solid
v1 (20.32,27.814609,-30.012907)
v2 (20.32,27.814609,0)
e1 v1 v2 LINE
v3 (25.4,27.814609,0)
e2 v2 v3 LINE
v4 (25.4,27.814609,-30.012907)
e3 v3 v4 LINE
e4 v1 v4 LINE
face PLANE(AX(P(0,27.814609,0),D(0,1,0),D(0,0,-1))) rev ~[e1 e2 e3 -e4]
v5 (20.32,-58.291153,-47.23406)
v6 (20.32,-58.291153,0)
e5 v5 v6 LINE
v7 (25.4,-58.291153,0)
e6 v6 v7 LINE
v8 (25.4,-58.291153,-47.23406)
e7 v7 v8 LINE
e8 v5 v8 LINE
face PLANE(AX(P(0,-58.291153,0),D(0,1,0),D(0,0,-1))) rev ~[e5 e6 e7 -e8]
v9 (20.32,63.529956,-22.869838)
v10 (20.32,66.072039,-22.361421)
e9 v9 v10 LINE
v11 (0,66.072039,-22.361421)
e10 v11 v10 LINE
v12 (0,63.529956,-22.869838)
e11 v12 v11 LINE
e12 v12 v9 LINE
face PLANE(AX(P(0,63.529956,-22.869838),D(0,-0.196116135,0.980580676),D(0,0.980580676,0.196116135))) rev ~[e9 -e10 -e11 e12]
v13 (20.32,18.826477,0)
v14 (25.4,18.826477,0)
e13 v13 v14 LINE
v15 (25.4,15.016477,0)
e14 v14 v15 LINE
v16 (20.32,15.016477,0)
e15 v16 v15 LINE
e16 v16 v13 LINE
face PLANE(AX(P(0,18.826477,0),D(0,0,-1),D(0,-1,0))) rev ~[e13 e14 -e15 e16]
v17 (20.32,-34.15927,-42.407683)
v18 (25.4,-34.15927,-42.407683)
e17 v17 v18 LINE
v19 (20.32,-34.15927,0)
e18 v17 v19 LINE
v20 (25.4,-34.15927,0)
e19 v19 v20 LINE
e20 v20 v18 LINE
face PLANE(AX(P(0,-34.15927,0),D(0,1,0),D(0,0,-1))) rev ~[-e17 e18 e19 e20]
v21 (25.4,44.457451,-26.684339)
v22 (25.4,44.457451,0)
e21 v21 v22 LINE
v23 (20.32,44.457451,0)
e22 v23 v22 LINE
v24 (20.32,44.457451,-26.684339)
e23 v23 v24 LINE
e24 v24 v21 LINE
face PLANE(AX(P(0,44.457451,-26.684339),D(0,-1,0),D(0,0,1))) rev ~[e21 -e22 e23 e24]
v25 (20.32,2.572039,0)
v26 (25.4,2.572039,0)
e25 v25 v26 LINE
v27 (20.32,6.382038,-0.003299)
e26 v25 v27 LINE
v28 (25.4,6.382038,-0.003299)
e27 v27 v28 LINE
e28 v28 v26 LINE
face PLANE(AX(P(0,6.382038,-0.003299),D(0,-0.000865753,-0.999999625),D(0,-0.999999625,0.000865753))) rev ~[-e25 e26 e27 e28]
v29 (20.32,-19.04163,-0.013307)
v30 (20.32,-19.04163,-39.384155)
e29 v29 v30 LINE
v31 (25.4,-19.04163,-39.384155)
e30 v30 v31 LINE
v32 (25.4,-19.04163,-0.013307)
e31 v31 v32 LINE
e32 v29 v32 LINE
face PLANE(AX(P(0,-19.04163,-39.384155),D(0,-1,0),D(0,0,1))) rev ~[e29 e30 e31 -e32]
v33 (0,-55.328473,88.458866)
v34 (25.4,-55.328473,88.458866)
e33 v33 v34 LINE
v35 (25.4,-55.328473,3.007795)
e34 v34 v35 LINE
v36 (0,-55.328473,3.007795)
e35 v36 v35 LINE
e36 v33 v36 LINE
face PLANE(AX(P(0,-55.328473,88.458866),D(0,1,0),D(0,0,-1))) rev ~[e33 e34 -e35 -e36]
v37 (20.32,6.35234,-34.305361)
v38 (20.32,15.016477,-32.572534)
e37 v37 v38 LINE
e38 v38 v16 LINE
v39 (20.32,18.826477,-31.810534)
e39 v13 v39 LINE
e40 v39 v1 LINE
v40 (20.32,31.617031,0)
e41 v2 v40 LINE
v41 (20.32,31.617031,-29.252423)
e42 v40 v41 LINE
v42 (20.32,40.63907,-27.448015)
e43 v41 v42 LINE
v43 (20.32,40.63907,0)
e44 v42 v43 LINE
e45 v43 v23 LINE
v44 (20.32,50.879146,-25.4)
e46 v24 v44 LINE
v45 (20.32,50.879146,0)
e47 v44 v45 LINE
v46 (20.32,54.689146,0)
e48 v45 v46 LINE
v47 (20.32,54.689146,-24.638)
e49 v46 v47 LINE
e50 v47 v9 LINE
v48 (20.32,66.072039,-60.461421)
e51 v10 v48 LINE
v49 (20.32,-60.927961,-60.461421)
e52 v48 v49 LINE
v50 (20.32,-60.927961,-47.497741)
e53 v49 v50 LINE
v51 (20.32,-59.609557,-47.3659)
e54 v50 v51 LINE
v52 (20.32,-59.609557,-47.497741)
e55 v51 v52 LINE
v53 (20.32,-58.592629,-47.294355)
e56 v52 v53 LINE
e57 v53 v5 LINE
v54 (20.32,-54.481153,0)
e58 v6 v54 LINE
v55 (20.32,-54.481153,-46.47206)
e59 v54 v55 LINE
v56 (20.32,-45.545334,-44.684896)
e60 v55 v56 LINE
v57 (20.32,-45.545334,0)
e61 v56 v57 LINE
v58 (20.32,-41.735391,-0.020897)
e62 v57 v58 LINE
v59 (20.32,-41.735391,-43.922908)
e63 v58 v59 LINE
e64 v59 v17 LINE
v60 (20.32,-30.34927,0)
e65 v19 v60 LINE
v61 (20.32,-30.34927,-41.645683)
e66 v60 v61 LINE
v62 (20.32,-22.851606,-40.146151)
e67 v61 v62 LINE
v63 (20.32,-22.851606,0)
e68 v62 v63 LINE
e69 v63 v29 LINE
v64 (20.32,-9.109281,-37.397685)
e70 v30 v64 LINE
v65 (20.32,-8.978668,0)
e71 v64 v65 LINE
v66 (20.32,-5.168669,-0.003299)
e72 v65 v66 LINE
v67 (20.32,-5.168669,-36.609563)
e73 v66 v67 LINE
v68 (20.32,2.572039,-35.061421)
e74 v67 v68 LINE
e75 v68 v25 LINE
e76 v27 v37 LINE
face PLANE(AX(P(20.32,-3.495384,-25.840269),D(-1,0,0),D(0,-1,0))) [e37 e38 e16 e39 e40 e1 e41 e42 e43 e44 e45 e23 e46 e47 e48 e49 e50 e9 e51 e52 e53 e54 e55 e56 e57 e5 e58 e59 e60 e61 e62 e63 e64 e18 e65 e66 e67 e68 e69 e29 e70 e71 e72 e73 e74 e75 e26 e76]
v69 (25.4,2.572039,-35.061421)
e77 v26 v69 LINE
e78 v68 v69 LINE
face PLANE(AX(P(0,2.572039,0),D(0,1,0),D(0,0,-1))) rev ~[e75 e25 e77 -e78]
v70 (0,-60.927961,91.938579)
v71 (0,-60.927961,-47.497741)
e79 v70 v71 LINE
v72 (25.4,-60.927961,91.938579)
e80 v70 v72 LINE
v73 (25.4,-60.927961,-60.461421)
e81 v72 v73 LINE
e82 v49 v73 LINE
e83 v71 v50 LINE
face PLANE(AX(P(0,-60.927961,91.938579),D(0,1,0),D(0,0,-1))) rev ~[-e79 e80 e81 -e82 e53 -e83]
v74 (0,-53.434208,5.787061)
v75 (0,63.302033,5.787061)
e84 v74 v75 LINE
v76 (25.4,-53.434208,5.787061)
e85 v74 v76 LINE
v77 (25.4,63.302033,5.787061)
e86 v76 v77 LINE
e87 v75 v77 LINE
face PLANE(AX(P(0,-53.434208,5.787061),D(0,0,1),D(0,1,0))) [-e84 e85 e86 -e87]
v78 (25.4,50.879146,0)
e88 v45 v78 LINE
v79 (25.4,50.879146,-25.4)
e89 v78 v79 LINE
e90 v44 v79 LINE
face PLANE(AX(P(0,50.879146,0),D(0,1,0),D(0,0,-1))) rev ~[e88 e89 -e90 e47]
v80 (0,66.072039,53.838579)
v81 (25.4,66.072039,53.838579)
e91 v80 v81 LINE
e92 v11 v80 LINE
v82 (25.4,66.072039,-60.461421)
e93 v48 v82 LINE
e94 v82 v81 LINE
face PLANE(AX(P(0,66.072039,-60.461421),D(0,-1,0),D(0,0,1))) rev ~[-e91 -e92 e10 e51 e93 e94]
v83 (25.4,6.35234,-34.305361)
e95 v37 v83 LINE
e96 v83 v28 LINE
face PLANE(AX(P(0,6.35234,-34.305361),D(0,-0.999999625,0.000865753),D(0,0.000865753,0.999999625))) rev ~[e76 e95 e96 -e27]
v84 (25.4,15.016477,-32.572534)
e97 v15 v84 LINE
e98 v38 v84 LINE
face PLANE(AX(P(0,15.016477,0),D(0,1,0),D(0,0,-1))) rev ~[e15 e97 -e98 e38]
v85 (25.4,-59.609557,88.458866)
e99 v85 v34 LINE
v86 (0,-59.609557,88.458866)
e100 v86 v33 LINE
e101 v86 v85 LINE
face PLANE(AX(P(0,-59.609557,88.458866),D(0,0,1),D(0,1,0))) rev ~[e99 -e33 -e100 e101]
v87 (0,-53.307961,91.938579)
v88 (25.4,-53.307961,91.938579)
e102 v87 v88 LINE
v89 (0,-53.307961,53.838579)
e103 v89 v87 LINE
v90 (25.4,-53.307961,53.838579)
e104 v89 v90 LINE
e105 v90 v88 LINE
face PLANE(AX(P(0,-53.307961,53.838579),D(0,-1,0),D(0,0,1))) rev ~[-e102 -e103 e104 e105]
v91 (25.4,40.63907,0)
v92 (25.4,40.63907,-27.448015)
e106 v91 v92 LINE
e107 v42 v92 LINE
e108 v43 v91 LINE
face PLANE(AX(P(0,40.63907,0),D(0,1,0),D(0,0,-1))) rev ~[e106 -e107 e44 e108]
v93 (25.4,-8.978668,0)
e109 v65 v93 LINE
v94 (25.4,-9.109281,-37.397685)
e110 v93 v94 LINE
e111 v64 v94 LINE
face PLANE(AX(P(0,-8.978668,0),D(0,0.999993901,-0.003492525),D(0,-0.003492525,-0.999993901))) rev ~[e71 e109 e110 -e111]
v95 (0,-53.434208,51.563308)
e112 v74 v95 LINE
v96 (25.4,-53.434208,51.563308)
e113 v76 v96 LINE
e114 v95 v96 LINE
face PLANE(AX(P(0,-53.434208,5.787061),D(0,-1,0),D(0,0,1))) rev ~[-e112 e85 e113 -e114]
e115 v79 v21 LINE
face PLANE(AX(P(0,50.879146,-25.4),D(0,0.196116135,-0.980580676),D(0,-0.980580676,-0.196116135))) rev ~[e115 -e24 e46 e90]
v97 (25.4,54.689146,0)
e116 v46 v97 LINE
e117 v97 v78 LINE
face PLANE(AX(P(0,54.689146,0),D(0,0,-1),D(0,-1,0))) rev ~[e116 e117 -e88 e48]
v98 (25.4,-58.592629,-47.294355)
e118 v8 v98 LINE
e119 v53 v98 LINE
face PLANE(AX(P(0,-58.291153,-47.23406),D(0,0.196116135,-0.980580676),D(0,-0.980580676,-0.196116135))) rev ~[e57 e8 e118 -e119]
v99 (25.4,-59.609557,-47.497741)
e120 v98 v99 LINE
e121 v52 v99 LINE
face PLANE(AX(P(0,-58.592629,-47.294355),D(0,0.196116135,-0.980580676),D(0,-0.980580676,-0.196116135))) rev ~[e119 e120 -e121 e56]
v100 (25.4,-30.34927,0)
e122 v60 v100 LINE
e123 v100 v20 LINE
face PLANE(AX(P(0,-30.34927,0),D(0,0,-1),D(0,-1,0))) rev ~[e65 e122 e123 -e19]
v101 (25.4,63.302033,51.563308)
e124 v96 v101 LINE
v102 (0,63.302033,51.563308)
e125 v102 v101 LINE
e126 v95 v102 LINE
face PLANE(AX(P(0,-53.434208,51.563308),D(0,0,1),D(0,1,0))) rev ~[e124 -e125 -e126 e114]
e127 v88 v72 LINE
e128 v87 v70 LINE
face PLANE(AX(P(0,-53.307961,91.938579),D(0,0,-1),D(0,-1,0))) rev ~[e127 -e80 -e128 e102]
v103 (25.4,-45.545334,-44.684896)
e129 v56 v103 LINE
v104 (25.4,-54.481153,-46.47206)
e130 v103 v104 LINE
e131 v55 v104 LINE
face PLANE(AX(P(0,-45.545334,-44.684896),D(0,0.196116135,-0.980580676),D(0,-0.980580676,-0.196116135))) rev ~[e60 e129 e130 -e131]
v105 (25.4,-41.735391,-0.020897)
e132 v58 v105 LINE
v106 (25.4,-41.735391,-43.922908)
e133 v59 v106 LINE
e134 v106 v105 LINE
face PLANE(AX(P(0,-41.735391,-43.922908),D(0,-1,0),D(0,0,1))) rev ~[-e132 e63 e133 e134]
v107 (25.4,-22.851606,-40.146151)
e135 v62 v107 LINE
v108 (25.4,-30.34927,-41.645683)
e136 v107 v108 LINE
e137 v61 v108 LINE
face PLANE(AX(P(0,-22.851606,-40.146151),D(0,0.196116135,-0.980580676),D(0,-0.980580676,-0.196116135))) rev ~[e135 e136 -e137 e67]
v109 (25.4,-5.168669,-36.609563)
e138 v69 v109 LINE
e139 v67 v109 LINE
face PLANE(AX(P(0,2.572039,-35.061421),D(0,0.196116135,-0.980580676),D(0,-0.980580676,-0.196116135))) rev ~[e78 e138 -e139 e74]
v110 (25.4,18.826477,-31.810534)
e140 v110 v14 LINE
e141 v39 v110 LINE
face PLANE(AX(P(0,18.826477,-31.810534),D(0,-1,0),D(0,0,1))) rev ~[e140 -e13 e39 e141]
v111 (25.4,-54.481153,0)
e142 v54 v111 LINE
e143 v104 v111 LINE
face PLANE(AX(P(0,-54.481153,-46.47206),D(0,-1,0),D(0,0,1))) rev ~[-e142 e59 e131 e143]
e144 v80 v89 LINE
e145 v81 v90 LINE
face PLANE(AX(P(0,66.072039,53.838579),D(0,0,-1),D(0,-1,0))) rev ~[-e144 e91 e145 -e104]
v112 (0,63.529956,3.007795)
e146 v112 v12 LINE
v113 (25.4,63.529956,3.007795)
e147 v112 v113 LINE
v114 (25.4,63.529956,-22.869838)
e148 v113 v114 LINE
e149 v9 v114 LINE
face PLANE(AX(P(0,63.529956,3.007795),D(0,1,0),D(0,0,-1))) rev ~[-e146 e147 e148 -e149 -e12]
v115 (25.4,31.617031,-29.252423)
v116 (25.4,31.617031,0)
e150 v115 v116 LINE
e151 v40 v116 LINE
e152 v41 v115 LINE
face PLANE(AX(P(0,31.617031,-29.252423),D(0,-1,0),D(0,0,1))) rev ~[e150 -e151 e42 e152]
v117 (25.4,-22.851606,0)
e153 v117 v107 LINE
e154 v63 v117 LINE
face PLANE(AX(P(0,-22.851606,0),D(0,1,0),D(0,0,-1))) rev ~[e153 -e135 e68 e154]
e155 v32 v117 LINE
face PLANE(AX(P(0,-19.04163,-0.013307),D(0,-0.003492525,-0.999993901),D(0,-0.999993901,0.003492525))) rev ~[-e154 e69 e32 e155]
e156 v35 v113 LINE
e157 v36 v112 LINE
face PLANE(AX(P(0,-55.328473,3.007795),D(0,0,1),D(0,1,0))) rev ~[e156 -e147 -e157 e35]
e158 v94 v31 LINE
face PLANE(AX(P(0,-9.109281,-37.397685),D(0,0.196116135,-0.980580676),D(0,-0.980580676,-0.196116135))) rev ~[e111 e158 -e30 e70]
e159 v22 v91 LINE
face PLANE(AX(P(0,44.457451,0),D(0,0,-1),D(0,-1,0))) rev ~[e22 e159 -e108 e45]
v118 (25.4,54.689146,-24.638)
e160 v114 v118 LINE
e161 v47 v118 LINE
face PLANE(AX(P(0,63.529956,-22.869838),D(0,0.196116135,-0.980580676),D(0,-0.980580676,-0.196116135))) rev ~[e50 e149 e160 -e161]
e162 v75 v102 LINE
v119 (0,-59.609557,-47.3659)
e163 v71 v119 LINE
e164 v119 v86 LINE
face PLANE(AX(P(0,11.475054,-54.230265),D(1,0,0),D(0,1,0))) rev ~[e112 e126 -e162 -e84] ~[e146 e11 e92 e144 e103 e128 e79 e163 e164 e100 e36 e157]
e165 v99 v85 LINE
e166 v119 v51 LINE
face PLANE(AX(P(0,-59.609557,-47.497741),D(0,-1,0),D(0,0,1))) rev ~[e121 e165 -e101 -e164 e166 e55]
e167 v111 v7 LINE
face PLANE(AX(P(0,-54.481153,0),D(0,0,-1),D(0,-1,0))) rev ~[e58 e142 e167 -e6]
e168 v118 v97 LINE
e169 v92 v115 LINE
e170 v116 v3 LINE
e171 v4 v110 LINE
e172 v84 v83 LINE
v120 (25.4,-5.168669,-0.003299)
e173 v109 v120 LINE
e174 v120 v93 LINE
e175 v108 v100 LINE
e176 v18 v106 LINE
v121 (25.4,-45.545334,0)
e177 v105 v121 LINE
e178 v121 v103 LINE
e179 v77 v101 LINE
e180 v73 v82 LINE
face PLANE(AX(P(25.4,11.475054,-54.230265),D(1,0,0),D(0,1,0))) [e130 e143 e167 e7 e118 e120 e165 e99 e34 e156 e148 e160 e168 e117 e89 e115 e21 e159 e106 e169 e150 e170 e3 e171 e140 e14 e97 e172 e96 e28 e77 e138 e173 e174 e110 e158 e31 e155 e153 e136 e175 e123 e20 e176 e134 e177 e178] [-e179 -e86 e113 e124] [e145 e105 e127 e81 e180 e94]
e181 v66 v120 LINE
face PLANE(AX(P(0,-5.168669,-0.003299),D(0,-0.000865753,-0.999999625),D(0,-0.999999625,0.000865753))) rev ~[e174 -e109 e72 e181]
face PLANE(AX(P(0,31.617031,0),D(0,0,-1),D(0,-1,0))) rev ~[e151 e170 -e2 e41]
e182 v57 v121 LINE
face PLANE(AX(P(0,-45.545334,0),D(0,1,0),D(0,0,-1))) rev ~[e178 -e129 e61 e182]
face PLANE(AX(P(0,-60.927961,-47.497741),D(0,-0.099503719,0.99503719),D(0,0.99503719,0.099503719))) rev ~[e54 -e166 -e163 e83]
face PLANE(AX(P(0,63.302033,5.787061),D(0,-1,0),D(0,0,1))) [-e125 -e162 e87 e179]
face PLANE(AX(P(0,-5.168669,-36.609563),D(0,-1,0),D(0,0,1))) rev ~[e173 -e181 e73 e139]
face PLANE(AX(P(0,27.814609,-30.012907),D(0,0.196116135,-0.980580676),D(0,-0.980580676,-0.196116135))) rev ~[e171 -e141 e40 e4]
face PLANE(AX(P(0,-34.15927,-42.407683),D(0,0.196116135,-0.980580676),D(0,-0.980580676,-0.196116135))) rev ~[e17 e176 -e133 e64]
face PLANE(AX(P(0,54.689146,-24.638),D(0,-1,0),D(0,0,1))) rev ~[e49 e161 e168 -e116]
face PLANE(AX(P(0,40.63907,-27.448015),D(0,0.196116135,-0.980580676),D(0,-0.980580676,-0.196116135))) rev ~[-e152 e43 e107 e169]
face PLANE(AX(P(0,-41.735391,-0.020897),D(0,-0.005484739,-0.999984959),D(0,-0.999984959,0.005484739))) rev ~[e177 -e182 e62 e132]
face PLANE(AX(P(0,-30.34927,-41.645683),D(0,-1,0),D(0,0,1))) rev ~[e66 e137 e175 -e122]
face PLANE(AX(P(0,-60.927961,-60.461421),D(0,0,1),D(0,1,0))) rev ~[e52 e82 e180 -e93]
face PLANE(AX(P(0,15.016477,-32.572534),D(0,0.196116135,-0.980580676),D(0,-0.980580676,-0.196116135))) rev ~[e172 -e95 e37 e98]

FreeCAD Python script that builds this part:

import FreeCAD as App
import Part
import Sketcher
from FreeCAD import Vector
Q = App.Units.Quantity

doc = App.newDocument("Part")
params = doc.addObject("Spreadsheet::Sheet", "Params")
for row, (alias, value) in enumerate([
    ("sketch1_width", "5 in"),
    ("sketch1_height", "6 in"),
    ("sketch1_height2", "1 in"),
    ("sketch1_width2", "4.7 in"),
    ("sketch1_height3", "4.5 in"),
    ("pad1_length", "1 in"),
    ("sketch2_width", "5 in"),
    ("sketch2_height", "1 in"),
    ("sketch2_height2", "1.5 in"),
    ("sketch2_width2", "0.15 in"),
    ("sketch2_width3", "0.15 in"),
    ("pocket1_length", "0.8 in"),
], start=1):
    params.set(f"A{row}", alias)
    params.set(f"B{row}", "=" + value)
    params.setAlias(f"B{row}", alias)

body = doc.addObject("PartDesign::Body", "Body")

# Sketch on YZ plane
sketch1 = doc.addObject("Sketcher::SketchObject", "Sketch")
body.addObject(sketch1)
sketch1.AttachmentSupport = (doc.YZ_Plane, [""])
sketch1.MapMode = "FlatFace"
sketch1.addGeometry([
    Part.LineSegment(Vector(-60.93, -60.46, 0), Vector(66.07, -60.46, 0)),  # 0
    Part.LineSegment(Vector(66.07, -60.46, 0), Vector(66.07, 53.84, 0)),  # 1
    Part.LineSegment(Vector(66.07, 53.84, 0), Vector(-53.31, 53.84, 0)),  # 2
    Part.LineSegment(Vector(-53.31, 53.84, 0), Vector(-53.31, 91.94, 0)),  # 3
    Part.LineSegment(Vector(-53.31, 91.94, 0), Vector(-60.93, 91.94, 0)),  # 4
    Part.LineSegment(Vector(-60.93, 91.94, 0), Vector(-60.93, -60.46, 0)),  # 5
    Part.LineSegment(Vector(-58.59, -47.29, 0), Vector(-59.61, -47.5, 0)),  # 6
    Part.LineSegment(Vector(-59.61, -47.5, 0), Vector(-59.61, 88.46, 0)),  # 7
    Part.LineSegment(Vector(-59.61, 88.46, 0), Vector(-55.33, 88.46, 0)),  # 8
    Part.LineSegment(Vector(-55.33, 88.46, 0), Vector(-55.33, 3.01, 0)),  # 9
    Part.LineSegment(Vector(-55.33, 3.01, 0), Vector(63.53, 3.01, 0)),  # 10
    Part.LineSegment(Vector(63.53, 3.01, 0), Vector(63.53, -22.87, 0)),  # 11
    Part.LineSegment(Vector(63.53, -22.87, 0), Vector(54.69, -24.64, 0)),  # 12
    Part.LineSegment(Vector(54.69, -24.64, 0), Vector(54.69, 0, 0)),  # 13
    Part.LineSegment(Vector(54.69, 0, 0), Vector(50.88, 0, 0)),  # 14
    Part.LineSegment(Vector(50.88, 0, 0), Vector(50.88, -25.4, 0)),  # 15
    Part.LineSegment(Vector(50.88, -25.4, 0), Vector(44.46, -26.68, 0)),  # 16
    Part.LineSegment(Vector(44.46, -26.68, 0), Vector(44.46, 0, 0)),  # 17
    Part.LineSegment(Vector(44.46, 0, 0), Vector(40.64, 0, 0)),  # 18
    Part.LineSegment(Vector(40.64, 0, 0), Vector(40.64, -27.45, 0)),  # 19
    Part.LineSegment(Vector(40.64, -27.45, 0), Vector(31.62, -29.25, 0)),  # 20
    Part.LineSegment(Vector(31.62, -29.25, 0), Vector(31.62, 0, 0)),  # 21
    Part.LineSegment(Vector(31.62, 0, 0), Vector(27.81, 0, 0)),  # 22
    Part.LineSegment(Vector(27.81, 0, 0), Vector(27.81, -30.01, 0)),  # 23
    Part.LineSegment(Vector(27.81, -30.01, 0), Vector(18.83, -31.81, 0)),  # 24
    Part.LineSegment(Vector(18.83, -31.81, 0), Vector(18.83, 0, 0)),  # 25
    Part.LineSegment(Vector(18.83, 0, 0), Vector(15.02, 0, 0)),  # 26
    Part.LineSegment(Vector(15.02, 0, 0), Vector(15.02, -32.57, 0)),  # 27
    Part.LineSegment(Vector(15.02, -32.57, 0), Vector(6.35, -34.31, 0)),  # 28
    Part.LineSegment(Vector(6.35, -34.31, 0), Vector(6.38, 0, 0)),  # 29
    Part.LineSegment(Vector(6.38, 0, 0), Vector(2.57, 0, 0)),  # 30
    Part.LineSegment(Vector(2.57, 0, 0), Vector(2.57, -35.06, 0)),  # 31
    Part.LineSegment(Vector(2.57, -35.06, 0), Vector(-5.17, -36.61, 0)),  # 32
    Part.LineSegment(Vector(-5.17, -36.61, 0), Vector(-5.17, 0, 0)),  # 33
    Part.LineSegment(Vector(-5.17, 0, 0), Vector(-8.98, 0, 0)),  # 34
    Part.LineSegment(Vector(-8.98, 0, 0), Vector(-9.11, -37.4, 0)),  # 35
    Part.LineSegment(Vector(-9.11, -37.4, 0), Vector(-19.04, -39.38, 0)),  # 36
    Part.LineSegment(Vector(-19.04, -39.38, 0), Vector(-19.04, -0.01, 0)),  # 37
    Part.LineSegment(Vector(-19.04, -0.01, 0), Vector(-22.85, 0, 0)),  # 38
    Part.LineSegment(Vector(-22.85, 0, 0), Vector(-22.85, -40.15, 0)),  # 39
    Part.LineSegment(Vector(-22.85, -40.15, 0), Vector(-30.35, -41.65, 0)),  # 40
    Part.LineSegment(Vector(-30.35, -41.65, 0), Vector(-30.35, 0, 0)),  # 41
    Part.LineSegment(Vector(-30.35, 0, 0), Vector(-34.16, 0, 0)),  # 42
    Part.LineSegment(Vector(-34.16, 0, 0), Vector(-34.16, -42.41, 0)),  # 43
    Part.LineSegment(Vector(-34.16, -42.41, 0), Vector(-41.74, -43.92, 0)),  # 44
    Part.LineSegment(Vector(-41.74, -43.92, 0), Vector(-41.74, -0.02, 0)),  # 45
    Part.LineSegment(Vector(-41.74, -0.02, 0), Vector(-45.55, 0, 0)),  # 46
    Part.LineSegment(Vector(-45.55, 0, 0), Vector(-45.55, -44.68, 0)),  # 47
    Part.LineSegment(Vector(-45.55, -44.68, 0), Vector(-54.48, -46.47, 0)),  # 48
    Part.LineSegment(Vector(-54.48, -46.47, 0), Vector(-54.48, 0, 0)),  # 49
    Part.LineSegment(Vector(-54.48, 0, 0), Vector(-58.29, 0, 0)),  # 50
    Part.LineSegment(Vector(-58.29, 0, 0), Vector(-58.29, -47.23, 0)),  # 51
    Part.LineSegment(Vector(-58.29, -47.23, 0), Vector(-58.59, -47.29, 0)),  # 52
    Part.LineSegment(Vector(63.3, 5.79, 0), Vector(-53.43, 5.79, 0)),  # 53
    Part.LineSegment(Vector(-53.43, 5.79, 0), Vector(-53.43, 51.56, 0)),  # 54
    Part.LineSegment(Vector(-53.43, 51.56, 0), Vector(63.3, 51.56, 0)),  # 55
    Part.LineSegment(Vector(63.3, 51.56, 0), Vector(63.3, 5.79, 0)),  # 56
], False)
sketch1.addConstraint([
    Sketcher.Constraint("Coincident", 0, 2, 1, 1),
    Sketcher.Constraint("Coincident", 1, 2, 2, 1),
    Sketcher.Constraint("Coincident", 2, 2, 3, 1),
    Sketcher.Constraint("Coincident", 3, 2, 4, 1),
    Sketcher.Constraint("Coincident", 4, 2, 5, 1),
    Sketcher.Constraint("Coincident", 5, 2, 0, 1),
    Sketcher.Constraint("Coincident", 6, 2, 7, 1),
    Sketcher.Constraint("Coincident", 7, 2, 8, 1),
    Sketcher.Constraint("Coincident", 8, 2, 9, 1),
    Sketcher.Constraint("Coincident", 9, 2, 10, 1),
    Sketcher.Constraint("Coincident", 10, 2, 11, 1),
    Sketcher.Constraint("Coincident", 11, 2, 12, 1),
    Sketcher.Constraint("Coincident", 12, 2, 13, 1),
    Sketcher.Constraint("Coincident", 13, 2, 14, 1),
    Sketcher.Constraint("Coincident", 14, 2, 15, 1),
    Sketcher.Constraint("Coincident", 15, 2, 16, 1),
    Sketcher.Constraint("Coincident", 16, 2, 17, 1),
    Sketcher.Constraint("Coincident", 17, 2, 18, 1),
    Sketcher.Constraint("Coincident", 18, 2, 19, 1),
    Sketcher.Constraint("Coincident", 19, 2, 20, 1),
    Sketcher.Constraint("Coincident", 20, 2, 21, 1),
    Sketcher.Constraint("Coincident", 21, 2, 22, 1),
    Sketcher.Constraint("Coincident", 22, 2, 23, 1),
    Sketcher.Constraint("Coincident", 23, 2, 24, 1),
    Sketcher.Constraint("Coincident", 24, 2, 25, 1),
    Sketcher.Constraint("Coincident", 25, 2, 26, 1),
    Sketcher.Constraint("Coincident", 26, 2, 27, 1),
    Sketcher.Constraint("Coincident", 27, 2, 28, 1),
    Sketcher.Constraint("Coincident", 28, 2, 29, 1),
    Sketcher.Constraint("Coincident", 29, 2, 30, 1),
    Sketcher.Constraint("Coincident", 30, 2, 31, 1),
    Sketcher.Constraint("Coincident", 31, 2, 32, 1),
    Sketcher.Constraint("Coincident", 32, 2, 33, 1),
    Sketcher.Constraint("Coincident", 33, 2, 34, 1),
    Sketcher.Constraint("Coincident", 34, 2, 35, 1),
    Sketcher.Constraint("Coincident", 35, 2, 36, 1),
    Sketcher.Constraint("Coincident", 36, 2, 37, 1),
    Sketcher.Constraint("Coincident", 37, 2, 38, 1),
    Sketcher.Constraint("Coincident", 38, 2, 39, 1),
    Sketcher.Constraint("Coincident", 39, 2, 40, 1),
    Sketcher.Constraint("Coincident", 40, 2, 41, 1),
    Sketcher.Constraint("Coincident", 41, 2, 42, 1),
    Sketcher.Constraint("Coincident", 42, 2, 43, 1),
    Sketcher.Constraint("Coincident", 43, 2, 44, 1),
    Sketcher.Constraint("Coincident", 44, 2, 45, 1),
    Sketcher.Constraint("Coincident", 45, 2, 46, 1),
    Sketcher.Constraint("Coincident", 46, 2, 47, 1),
    Sketcher.Constraint("Coincident", 47, 2, 48, 1),
    Sketcher.Constraint("Coincident", 48, 2, 49, 1),
    Sketcher.Constraint("Coincident", 49, 2, 50, 1),
    Sketcher.Constraint("Coincident", 50, 2, 51, 1),
    Sketcher.Constraint("Coincident", 51, 2, 52, 1),
    Sketcher.Constraint("Coincident", 52, 2, 6, 1),
    Sketcher.Constraint("Coincident", 53, 2, 54, 1),
    Sketcher.Constraint("Coincident", 54, 2, 55, 1),
    Sketcher.Constraint("Coincident", 55, 2, 56, 1),
    Sketcher.Constraint("Coincident", 56, 2, 53, 1),
    Sketcher.Constraint("Horizontal", 0),
    Sketcher.Constraint("Vertical", 1),
    Sketcher.Constraint("Horizontal", 2),
    Sketcher.Constraint("Vertical", 3),
    Sketcher.Constraint("Horizontal", 4),
    Sketcher.Constraint("Vertical", 5),
    Sketcher.Constraint("Vertical", 7),
    Sketcher.Constraint("Horizontal", 8),
    Sketcher.Constraint("Vertical", 9),
    Sketcher.Constraint("Horizontal", 10),
    Sketcher.Constraint("Vertical", 11),
    Sketcher.Constraint("Vertical", 13),
    Sketcher.Constraint("Horizontal", 14),
    Sketcher.Constraint("Vertical", 15),
    Sketcher.Constraint("Vertical", 17),
    Sketcher.Constraint("Horizontal", 18),
    Sketcher.Constraint("Vertical", 19),
    Sketcher.Constraint("Vertical", 21),
    Sketcher.Constraint("Horizontal", 22),
    Sketcher.Constraint("Vertical", 23),
    Sketcher.Constraint("Vertical", 25),
    Sketcher.Constraint("Horizontal", 26),
    Sketcher.Constraint("Vertical", 27),
    Sketcher.Constraint("Vertical", 31),
    Sketcher.Constraint("Vertical", 33),
    Sketcher.Constraint("Vertical", 37),
    Sketcher.Constraint("Vertical", 39),
    Sketcher.Constraint("Vertical", 41),
    Sketcher.Constraint("Horizontal", 42),
    Sketcher.Constraint("Vertical", 43),
    Sketcher.Constraint("Vertical", 45),
    Sketcher.Constraint("Vertical", 47),
    Sketcher.Constraint("Vertical", 49),
    Sketcher.Constraint("Horizontal", 50),
    Sketcher.Constraint("Vertical", 51),
    Sketcher.Constraint("Horizontal", 53),
    Sketcher.Constraint("Vertical", 54),
    Sketcher.Constraint("Horizontal", 55),
    Sketcher.Constraint("Vertical", 56),
    Sketcher.Constraint("PointOnObject", 13, 2, -1),
    Sketcher.Constraint("PointOnObject", 17, 2, -1),
    Sketcher.Constraint("PointOnObject", 21, 2, -1),
    Sketcher.Constraint("PointOnObject", 25, 2, -1),
    Sketcher.Constraint("PointOnObject", 30, 2, -1),
    Sketcher.Constraint("PointOnObject", 34, 2, -1),
    Sketcher.Constraint("PointOnObject", 38, 2, -1),
    Sketcher.Constraint("PointOnObject", 41, 2, -1),
    Sketcher.Constraint("PointOnObject", 46, 2, -1),
    Sketcher.Constraint("PointOnObject", 49, 2, -1),
    Sketcher.Constraint("Parallel", 6, 12),
    Sketcher.Constraint("Parallel", 12, 16),
    Sketcher.Constraint("Parallel", 16, 20),
    Sketcher.Constraint("Parallel", 20, 24),
    Sketcher.Constraint("Parallel", 24, 28),
    Sketcher.Constraint("Perpendicular", 29, 30),
    Sketcher.Constraint("Parallel", 28, 32),
    Sketcher.Constraint("Parallel", 30, 34),
    Sketcher.Constraint("Parallel", 32, 36),
    Sketcher.Constraint("Perpendicular", 35, 38),
    Sketcher.Constraint("Parallel", 36, 40),
    Sketcher.Constraint("Parallel", 40, 44),
    Sketcher.Constraint("Parallel", 44, 48),
    Sketcher.Constraint("Parallel", 48, 52),
    Sketcher.Constraint("Equal", 14, 26),
    Sketcher.Constraint("Equal", 26, 42),
    Sketcher.Constraint("Equal", 42, 50),
    Sketcher.Constraint("Equal", 30, 34),
    Sketcher.Constraint("Equal", 34, 38),
    Sketcher.Constraint("Equal", 38, 46),
    Sketcher.Constraint("DistanceX", 0, 1, 0, 2, Q("5 in")),
    Sketcher.Constraint("DistanceY", 5, 2, 5, 1, Q("6 in")),
    Sketcher.Constraint("DistanceY", 15, 2, 15, 1, Q("1 in")),
    Sketcher.Constraint("DistanceX", 2, 2, 2, 1, Q("4.7 in")),
    Sketcher.Constraint("DistanceY", 1, 1, 1, 2, Q("4.5 in")),
    Sketcher.Constraint("DistanceX", 14, 2, 14, 1, Q("0.15 in")),
    Sketcher.Constraint("DistanceY", 13, 1, 13, 2, Q("0.97 in")),
    Sketcher.Constraint("Distance", 30, Q("0.15 in")),
    Sketcher.Constraint("DistanceY", 27, 2, 24, 2, Q("0.03 in")),
    Sketcher.Constraint("DistanceY", 39, 2, 36, 2, Q("0.0299998 in")),
    Sketcher.Constraint("DistanceY", 43, 2, 40, 2, Q("0.03 in")),
    Sketcher.Constraint("DistanceY", 51, 2, 48, 2, Q("0.03 in")),
    Sketcher.Constraint("DistanceX", -1, 1, 24, 2, Q("0.7411999 in")),
    Sketcher.Constraint("DistanceX", 22, 2, 18, 2, Q("0.5049 in")),
    Sketcher.Constraint("DistanceX", 10, 1, 10, 2, 118.858429),
    Sketcher.Constraint("DistanceX", 18, 2, 18, 1, 3.818381),
    Sketcher.Constraint("DistanceX", 22, 2, 22, 1, 3.802421),
    Sketcher.Constraint("DistanceX", 53, 2, 53, 1, 116.736241),
    Sketcher.Constraint("DistanceY", 9, 2, 9, 1, 85.451071),
    Sketcher.Constraint("DistanceY", 17, 1, 17, 2, 26.684339),
    Sketcher.Constraint("DistanceY", 31, 2, 31, 1, 35.061421),
    Sketcher.Constraint("DistanceY", 37, 1, 37, 2, 39.370849),
    Sketcher.Constraint("DistanceY", 39, 2, 39, 1, 40.146151),
    Sketcher.Constraint("DistanceY", 45, 1, 45, 2, 43.902011),
    Sketcher.Constraint("DistanceY", 49, 1, 49, 2, 46.47206),
    Sketcher.Constraint("DistanceY", 29, 2, -1, 1, 0.003299),
    Sketcher.Constraint("DistanceY", 16, 2, 11, 2, 3.814501),
    Sketcher.Constraint("DistanceY", 31, 2, 20, 2, 5.808998),
    Sketcher.Constraint("DistanceY", 32, 2, 28, 2, 2.304202),
    Sketcher.Constraint("DistanceX", 40, 2, 32, 2, 25.180601),
    Sketcher.Constraint("Distance", 12, 9.015892),
    Sketcher.Constraint("Distance", 28, 8.83572),
    Sketcher.Constraint("DistanceX", 8, 1, 8, 2, 4.281083),
    Sketcher.Constraint("DistanceY", 7, 1, 7, 2, 135.956607),
    Sketcher.Constraint("DistanceY", 11, 2, 11, 1, 25.877633),
    Sketcher.Constraint("DistanceY", 23, 2, 23, 1, 30.012907),
    Sketcher.Constraint("DistanceY", 25, 1, 25, 2, 31.810534),
    Sketcher.Constraint("DistanceY", 41, 1, 41, 2, 41.645683),
    Sketcher.Constraint("DistanceY", 47, 2, 47, 1, 44.684896),
    Sketcher.Constraint("DistanceY", 54, 1, 54, 2, 45.776247),
    Sketcher.Constraint("DistanceX", -1, 1, 0, 2, 66.072039),
    Sketcher.Constraint("DistanceY", 0, 2, -1, 1, 60.461421),
    Sketcher.Constraint("DistanceX", 52, 2, -1, 1, 58.592629),
    Sketcher.Constraint("DistanceX", 53, 2, -1, 1, 53.434208),
    Sketcher.Constraint("DistanceY", -1, 1, 53, 2, 5.787061),
])
sketch1.setExpression("Constraints[126]", "Params.sketch1_width")
sketch1.setExpression("Constraints[127]", "Params.sketch1_height")
sketch1.setExpression("Constraints[128]", "Params.sketch1_height2")
sketch1.setExpression("Constraints[129]", "Params.sketch1_width2")
sketch1.setExpression("Constraints[130]", "Params.sketch1_height3")
pad1 = doc.addObject("PartDesign::Pad", "Pad")
body.addObject(pad1)
pad1.Profile = sketch1
pad1.setExpression("Length", "Params.pad1_length")

# Sketch on YZ plane
sketch2 = doc.addObject("Sketcher::SketchObject", "Sketch001")
body.addObject(sketch2)
sketch2.AttachmentSupport = (doc.YZ_Plane, [""])
sketch2.MapMode = "FlatFace"
sketch2.addGeometry([
    Part.LineSegment(Vector(66.072039, -22.361421, 0), Vector(66.072039, -60.461421, 0)),  # 0
    Part.LineSegment(Vector(66.072039, -60.461421, 0), Vector(-60.927961, -60.461421, 0)),  # 1
    Part.LineSegment(Vector(-60.927961, -60.461421, 0), Vector(-60.927961, -47.497741, 0)),  # 2
    Part.LineSegment(Vector(-60.927961, -47.497741, 0), Vector(-59.609557, -47.3659, 0)),  # 3
    Part.LineSegment(Vector(-59.609557, -47.3659, 0), Vector(-59.609557, -47.497741, 0)),  # 4
    Part.LineSegment(Vector(-59.609557, -47.497741, 0), Vector(-58.291153, -47.23406, 0)),  # 5
    Part.LineSegment(Vector(-58.291153, -47.23406, 0), Vector(-58.291153, 0, 0)),  # 6
    Part.LineSegment(Vector(-58.291153, 0, 0), Vector(-54.481153, 0, 0)),  # 7
    Part.LineSegment(Vector(-54.481153, 0, 0), Vector(-54.481153, -46.47206, 0)),  # 8
    Part.LineSegment(Vector(-54.481153, -46.47206, 0), Vector(-45.545334, -44.684896, 0)),  # 9
    Part.LineSegment(Vector(-45.545334, -44.684896, 0), Vector(-45.545334, 0, 0)),  # 10
    Part.LineSegment(Vector(-45.545334, 0, 0), Vector(-41.735391, -0.020897, 0)),  # 11
    Part.LineSegment(Vector(-41.735391, -0.020897, 0), Vector(-41.735391, -43.922908, 0)),  # 12
    Part.LineSegment(Vector(-41.735391, -43.922908, 0), Vector(-34.15927, -42.407683, 0)),  # 13
    Part.LineSegment(Vector(-34.15927, -42.407683, 0), Vector(-34.15927, 0, 0)),  # 14
    Part.LineSegment(Vector(-34.15927, 0, 0), Vector(-30.34927, 0, 0)),  # 15
    Part.LineSegment(Vector(-30.34927, 0, 0), Vector(-30.34927, -41.645683, 0)),  # 16
    Part.LineSegment(Vector(-30.34927, -41.645683, 0), Vector(-22.851606, -40.146151, 0)),  # 17
    Part.LineSegment(Vector(-22.851606, -40.146151, 0), Vector(-22.851606, 0, 0)),  # 18
    Part.LineSegment(Vector(-22.851606, 0, 0), Vector(-19.04163, -0.013307, 0)),  # 19
    Part.LineSegment(Vector(-19.04163, -0.013307, 0), Vector(-19.04163, -39.384155, 0)),  # 20
    Part.LineSegment(Vector(-19.04163, -39.384155, 0), Vector(-9.109281, -37.397685, 0)),  # 21
    Part.LineSegment(Vector(-9.109281, -37.397685, 0), Vector(-8.978668, 0, 0)),  # 22
    Part.LineSegment(Vector(-8.978668, 0, 0), Vector(-5.168669, -0.003299, 0)),  # 23
    Part.LineSegment(Vector(-5.168669, -0.003299, 0), Vector(-5.168669, -36.609563, 0)),  # 24
    Part.LineSegment(Vector(-5.168669, -36.609563, 0), Vector(2.572039, -35.061421, 0)),  # 25
    Part.LineSegment(Vector(2.572039, -35.061421, 0), Vector(2.572039, 0, 0)),  # 26
    Part.LineSegment(Vector(2.572039, 0, 0), Vector(6.382038, -0.003299, 0)),  # 27
    Part.LineSegment(Vector(6.382038, -0.003299, 0), Vector(6.35234, -34.305361, 0)),  # 28
    Part.LineSegment(Vector(6.35234, -34.305361, 0), Vector(15.016477, -32.572534, 0)),  # 29
    Part.LineSegment(Vector(15.016477, -32.572534, 0), Vector(15.016477, 0, 0)),  # 30
    Part.LineSegment(Vector(15.016477, 0, 0), Vector(18.826477, 0, 0)),  # 31
    Part.LineSegment(Vector(18.826477, 0, 0), Vector(18.826477, -31.810534, 0)),  # 32
    Part.LineSegment(Vector(18.826477, -31.810534, 0), Vector(27.814609, -30.012907, 0)),  # 33
    Part.LineSegment(Vector(27.814609, -30.012907, 0), Vector(27.814609, 0, 0)),  # 34
    Part.LineSegment(Vector(27.814609, 0, 0), Vector(31.617031, 0, 0)),  # 35
    Part.LineSegment(Vector(31.617031, 0, 0), Vector(31.617031, -29.252423, 0)),  # 36
    Part.LineSegment(Vector(31.617031, -29.252423, 0), Vector(40.63907, -27.448015, 0)),  # 37
    Part.LineSegment(Vector(40.63907, -27.448015, 0), Vector(40.63907, 0, 0)),  # 38
    Part.LineSegment(Vector(40.63907, 0, 0), Vector(44.457451, 0, 0)),  # 39
    Part.LineSegment(Vector(44.457451, 0, 0), Vector(44.457451, -26.684339, 0)),  # 40
    Part.LineSegment(Vector(44.457451, -26.684339, 0), Vector(50.879146, -25.4, 0)),  # 41
    Part.LineSegment(Vector(50.879146, -25.4, 0), Vector(50.879146, 0, 0)),  # 42
    Part.LineSegment(Vector(50.879146, 0, 0), Vector(54.689146, 0, 0)),  # 43
    Part.LineSegment(Vector(54.689146, 0, 0), Vector(54.689146, -24.638, 0)),  # 44
    Part.LineSegment(Vector(54.689146, -24.638, 0), Vector(63.529956, -22.869838, 0)),  # 45
    Part.LineSegment(Vector(63.529956, -22.869838, 0), Vector(66.072039, -22.361421, 0)),  # 46
], False)
sketch2.addConstraint([
    Sketcher.Constraint("Coincident", 0, 2, 1, 1),
    Sketcher.Constraint("Coincident", 1, 2, 2, 1),
    Sketcher.Constraint("Coincident", 2, 2, 3, 1),
    Sketcher.Constraint("Coincident", 3, 2, 4, 1),
    Sketcher.Constraint("Coincident", 4, 2, 5, 1),
    Sketcher.Constraint("Coincident", 5, 2, 6, 1),
    Sketcher.Constraint("Coincident", 6, 2, 7, 1),
    Sketcher.Constraint("Coincident", 7, 2, 8, 1),
    Sketcher.Constraint("Coincident", 8, 2, 9, 1),
    Sketcher.Constraint("Coincident", 9, 2, 10, 1),
    Sketcher.Constraint("Coincident", 10, 2, 11, 1),
    Sketcher.Constraint("Coincident", 11, 2, 12, 1),
    Sketcher.Constraint("Coincident", 12, 2, 13, 1),
    Sketcher.Constraint("Coincident", 13, 2, 14, 1),
    Sketcher.Constraint("Coincident", 14, 2, 15, 1),
    Sketcher.Constraint("Coincident", 15, 2, 16, 1),
    Sketcher.Constraint("Coincident", 16, 2, 17, 1),
    Sketcher.Constraint("Coincident", 17, 2, 18, 1),
    Sketcher.Constraint("Coincident", 18, 2, 19, 1),
    Sketcher.Constraint("Coincident", 19, 2, 20, 1),
    Sketcher.Constraint("Coincident", 20, 2, 21, 1),
    Sketcher.Constraint("Coincident", 21, 2, 22, 1),
    Sketcher.Constraint("Coincident", 22, 2, 23, 1),
    Sketcher.Constraint("Coincident", 23, 2, 24, 1),
    Sketcher.Constraint("Coincident", 24, 2, 25, 1),
    Sketcher.Constraint("Coincident", 25, 2, 26, 1),
    Sketcher.Constraint("Coincident", 26, 2, 27, 1),
    Sketcher.Constraint("Coincident", 27, 2, 28, 1),
    Sketcher.Constraint("Coincident", 28, 2, 29, 1),
    Sketcher.Constraint("Coincident", 29, 2, 30, 1),
    Sketcher.Constraint("Coincident", 30, 2, 31, 1),
    Sketcher.Constraint("Coincident", 31, 2, 32, 1),
    Sketcher.Constraint("Coincident", 32, 2, 33, 1),
    Sketcher.Constraint("Coincident", 33, 2, 34, 1),
    Sketcher.Constraint("Coincident", 34, 2, 35, 1),
    Sketcher.Constraint("Coincident", 35, 2, 36, 1),
    Sketcher.Constraint("Coincident", 36, 2, 37, 1),
    Sketcher.Constraint("Coincident", 37, 2, 38, 1),
    Sketcher.Constraint("Coincident", 38, 2, 39, 1),
    Sketcher.Constraint("Coincident", 39, 2, 40, 1),
    Sketcher.Constraint("Coincident", 40, 2, 41, 1),
    Sketcher.Constraint("Coincident", 41, 2, 42, 1),
    Sketcher.Constraint("Coincident", 42, 2, 43, 1),
    Sketcher.Constraint("Coincident", 43, 2, 44, 1),
    Sketcher.Constraint("Coincident", 44, 2, 45, 1),
    Sketcher.Constraint("Coincident", 45, 2, 46, 1),
    Sketcher.Constraint("Coincident", 46, 2, 0, 1),
    Sketcher.Constraint("Vertical", 0),
    Sketcher.Constraint("Horizontal", 1),
    Sketcher.Constraint("Vertical", 2),
    Sketcher.Constraint("Vertical", 4),
    Sketcher.Constraint("Vertical", 6),
    Sketcher.Constraint("Horizontal", 7),
    Sketcher.Constraint("Vertical", 8),
    Sketcher.Constraint("Vertical", 10),
    Sketcher.Constraint("Vertical", 12),
    Sketcher.Constraint("Vertical", 14),
    Sketcher.Constraint("Horizontal", 15),
    Sketcher.Constraint("Vertical", 16),
    Sketcher.Constraint("Vertical", 18),
    Sketcher.Constraint("Vertical", 20),
    Sketcher.Constraint("Vertical", 24),
    Sketcher.Constraint("Vertical", 26),
    Sketcher.Constraint("Vertical", 30),
    Sketcher.Constraint("Horizontal", 31),
    Sketcher.Constraint("Vertical", 32),
    Sketcher.Constraint("Vertical", 34),
    Sketcher.Constraint("Horizontal", 35),
    Sketcher.Constraint("Vertical", 36),
    Sketcher.Constraint("Vertical", 38),
    Sketcher.Constraint("Horizontal", 39),
    Sketcher.Constraint("Vertical", 40),
    Sketcher.Constraint("Vertical", 42),
    Sketcher.Constraint("Horizontal", 43),
    Sketcher.Constraint("Vertical", 44),
    Sketcher.Constraint("PointOnObject", 6, 2, -1),
    Sketcher.Constraint("PointOnObject", 10, 2, -1),
    Sketcher.Constraint("PointOnObject", 14, 2, -1),
    Sketcher.Constraint("PointOnObject", 18, 2, -1),
    Sketcher.Constraint("PointOnObject", 22, 2, -1),
    Sketcher.Constraint("PointOnObject", 26, 2, -1),
    Sketcher.Constraint("PointOnObject", 30, 2, -1),
    Sketcher.Constraint("PointOnObject", 34, 2, -1),
    Sketcher.Constraint("PointOnObject", 38, 2, -1),
    Sketcher.Constraint("PointOnObject", 42, 2, -1),
    Sketcher.Constraint("DistanceX", 1, 2, 1, 1, Q("5 in")),
    Sketcher.Constraint("DistanceY", 42, 1, 42, 2, Q("1 in")),
    Sketcher.Constraint("DistanceY", 0, 2, 0, 1, Q("1.5 in")),
    Sketcher.Constraint("DistanceX", 7, 1, 7, 2, Q("0.15 in")),
    Sketcher.Constraint("DistanceX", 15, 1, 15, 2, Q("0.15 in")),
    Sketcher.Constraint("DistanceX", 31, 1, 31, 2, Q("0.15 in")),
    Sketcher.Constraint("DistanceX", 43, 1, 43, 2, Q("0.15 in")),
    Sketcher.Constraint("DistanceY", 44, 2, 44, 1, Q("0.97 in")),
    Sketcher.Constraint("Distance", 11, Q("0.15 in")),
    Sketcher.Constraint("Distance", 19, Q("0.15 in")),
    Sketcher.Constraint("Distance", 23, Q("0.15 in")),
    Sketcher.Constraint("Distance", 27, Q("0.15 in")),
    Sketcher.Constraint("DistanceY", 5, 2, 8, 2, Q("0.03 in")),
    Sketcher.Constraint("DistanceY", 13, 2, 16, 2, Q("0.03 in")),
    Sketcher.Constraint("DistanceY", 17, 2, 20, 2, Q("0.0299998 in")),
    Sketcher.Constraint("DistanceY", 29, 2, 32, 2, Q("0.03 in")),
    Sketcher.Constraint("DistanceX", -1, 1, 29, 2, Q("0.5911999 in")),
    Sketcher.Constraint("DistanceX", 33, 2, 37, 2, Q("0.5049 in")),
    Sketcher.Constraint("DistanceX", 35, 1, 35, 2, 3.802421),
    Sketcher.Constraint("DistanceX", 39, 1, 39, 2, 3.818381),
    Sketcher.Constraint("DistanceY", 2, 1, 2, 2, 12.963681),
    Sketcher.Constraint("DistanceY", 4, 2, 4, 1, 0.13184),
    Sketcher.Constraint("DistanceY", 6, 1, 6, 2, 47.23406),
    Sketcher.Constraint("DistanceY", 12, 2, 12, 1, 43.902011),
    Sketcher.Constraint("DistanceY", 18, 1, 18, 2, 40.146151),
    Sketcher.Constraint("DistanceY", 20, 2, 20, 1, 39.370849),
    Sketcher.Constraint("DistanceY", 26, 1, 26, 2, 35.061421),
    Sketcher.Constraint("DistanceY", 40, 2, 40, 1, 26.684339),
    Sketcher.Constraint("DistanceY", 3, 2, -1, 1, 47.3659),
    Sketcher.Constraint("DistanceY", 23, 2, -1, 1, 0.003299),
    Sketcher.Constraint("DistanceY", 27, 2, -1, 1, 0.003299),
    Sketcher.Constraint("DistanceY", 9, 2, 11, 2, 44.663999),
    Sketcher.Constraint("DistanceX", 15, 2, 23, 2, 25.180601),
    Sketcher.Constraint("DistanceX", 25, 2, 28, 2, 3.780301),
    Sketcher.Constraint("DistanceY", 24, 2, 28, 2, 2.304202),
    Sketcher.Constraint("DistanceY", 40, 2, 45, 2, 3.814501),
    Sketcher.Constraint("Distance", 3, 1.32498),
    Sketcher.Constraint("Distance", 29, 8.83572),
    Sketcher.Constraint("Distance", 37, 9.200711),
    Sketcher.Constraint("Distance", 41, 6.548871),
    Sketcher.Constraint("Distance", 45, 9.015892),
    Sketcher.Constraint("DistanceY", 10, 1, 10, 2, 44.684896),
    Sketcher.Constraint("DistanceY", 14, 1, 14, 2, 42.407683),
    Sketcher.Constraint("DistanceY", 24, 2, 24, 1, 36.606265),
    Sketcher.Constraint("DistanceY", 30, 1, 30, 2, 32.572534),
    Sketcher.Constraint("DistanceY", 34, 1, 34, 2, 30.012907),
    Sketcher.Constraint("DistanceY", 36, 2, 36, 1, 29.252423),
    Sketcher.Constraint("DistanceX", -1, 1, 0, 2, 66.072039),
    Sketcher.Constraint("DistanceY", 0, 2, -1, 1, 60.461421),
    Sketcher.Constraint("DistanceX", 11, 2, -1, 1, 41.735391),
    Sketcher.Constraint("DistanceX", 13, 2, -1, 1, 34.15927),
    Sketcher.Constraint("DistanceX", 19, 2, -1, 1, 19.04163),
    Sketcher.Constraint("DistanceX", 21, 2, -1, 1, 9.109281),
    Sketcher.Constraint("DistanceX", -1, 1, 33, 2, 27.814609),
    Sketcher.Constraint("DistanceX", 2, 2, 5, 2, 2.636808),
    Sketcher.Constraint("DistanceY", 20, 2, 21, 2, 1.98647),
])
sketch2.setExpression("Constraints[85]", "Params.sketch2_width")
sketch2.setExpression("Constraints[86]", "Params.sketch2_height")
sketch2.setExpression("Constraints[87]", "Params.sketch2_height2")
sketch2.setExpression("Constraints[88]", "Params.sketch2_width2")
sketch2.setExpression("Constraints[89]", "Params.sketch2_width3")
pocket1 = doc.addObject("PartDesign::Pocket", "Pocket")
body.addObject(pocket1)
pocket1.Profile = sketch2
pocket1.setExpression("Length", "Params.pocket1_length")
pocket1.Reversed = True

doc.recompute()
